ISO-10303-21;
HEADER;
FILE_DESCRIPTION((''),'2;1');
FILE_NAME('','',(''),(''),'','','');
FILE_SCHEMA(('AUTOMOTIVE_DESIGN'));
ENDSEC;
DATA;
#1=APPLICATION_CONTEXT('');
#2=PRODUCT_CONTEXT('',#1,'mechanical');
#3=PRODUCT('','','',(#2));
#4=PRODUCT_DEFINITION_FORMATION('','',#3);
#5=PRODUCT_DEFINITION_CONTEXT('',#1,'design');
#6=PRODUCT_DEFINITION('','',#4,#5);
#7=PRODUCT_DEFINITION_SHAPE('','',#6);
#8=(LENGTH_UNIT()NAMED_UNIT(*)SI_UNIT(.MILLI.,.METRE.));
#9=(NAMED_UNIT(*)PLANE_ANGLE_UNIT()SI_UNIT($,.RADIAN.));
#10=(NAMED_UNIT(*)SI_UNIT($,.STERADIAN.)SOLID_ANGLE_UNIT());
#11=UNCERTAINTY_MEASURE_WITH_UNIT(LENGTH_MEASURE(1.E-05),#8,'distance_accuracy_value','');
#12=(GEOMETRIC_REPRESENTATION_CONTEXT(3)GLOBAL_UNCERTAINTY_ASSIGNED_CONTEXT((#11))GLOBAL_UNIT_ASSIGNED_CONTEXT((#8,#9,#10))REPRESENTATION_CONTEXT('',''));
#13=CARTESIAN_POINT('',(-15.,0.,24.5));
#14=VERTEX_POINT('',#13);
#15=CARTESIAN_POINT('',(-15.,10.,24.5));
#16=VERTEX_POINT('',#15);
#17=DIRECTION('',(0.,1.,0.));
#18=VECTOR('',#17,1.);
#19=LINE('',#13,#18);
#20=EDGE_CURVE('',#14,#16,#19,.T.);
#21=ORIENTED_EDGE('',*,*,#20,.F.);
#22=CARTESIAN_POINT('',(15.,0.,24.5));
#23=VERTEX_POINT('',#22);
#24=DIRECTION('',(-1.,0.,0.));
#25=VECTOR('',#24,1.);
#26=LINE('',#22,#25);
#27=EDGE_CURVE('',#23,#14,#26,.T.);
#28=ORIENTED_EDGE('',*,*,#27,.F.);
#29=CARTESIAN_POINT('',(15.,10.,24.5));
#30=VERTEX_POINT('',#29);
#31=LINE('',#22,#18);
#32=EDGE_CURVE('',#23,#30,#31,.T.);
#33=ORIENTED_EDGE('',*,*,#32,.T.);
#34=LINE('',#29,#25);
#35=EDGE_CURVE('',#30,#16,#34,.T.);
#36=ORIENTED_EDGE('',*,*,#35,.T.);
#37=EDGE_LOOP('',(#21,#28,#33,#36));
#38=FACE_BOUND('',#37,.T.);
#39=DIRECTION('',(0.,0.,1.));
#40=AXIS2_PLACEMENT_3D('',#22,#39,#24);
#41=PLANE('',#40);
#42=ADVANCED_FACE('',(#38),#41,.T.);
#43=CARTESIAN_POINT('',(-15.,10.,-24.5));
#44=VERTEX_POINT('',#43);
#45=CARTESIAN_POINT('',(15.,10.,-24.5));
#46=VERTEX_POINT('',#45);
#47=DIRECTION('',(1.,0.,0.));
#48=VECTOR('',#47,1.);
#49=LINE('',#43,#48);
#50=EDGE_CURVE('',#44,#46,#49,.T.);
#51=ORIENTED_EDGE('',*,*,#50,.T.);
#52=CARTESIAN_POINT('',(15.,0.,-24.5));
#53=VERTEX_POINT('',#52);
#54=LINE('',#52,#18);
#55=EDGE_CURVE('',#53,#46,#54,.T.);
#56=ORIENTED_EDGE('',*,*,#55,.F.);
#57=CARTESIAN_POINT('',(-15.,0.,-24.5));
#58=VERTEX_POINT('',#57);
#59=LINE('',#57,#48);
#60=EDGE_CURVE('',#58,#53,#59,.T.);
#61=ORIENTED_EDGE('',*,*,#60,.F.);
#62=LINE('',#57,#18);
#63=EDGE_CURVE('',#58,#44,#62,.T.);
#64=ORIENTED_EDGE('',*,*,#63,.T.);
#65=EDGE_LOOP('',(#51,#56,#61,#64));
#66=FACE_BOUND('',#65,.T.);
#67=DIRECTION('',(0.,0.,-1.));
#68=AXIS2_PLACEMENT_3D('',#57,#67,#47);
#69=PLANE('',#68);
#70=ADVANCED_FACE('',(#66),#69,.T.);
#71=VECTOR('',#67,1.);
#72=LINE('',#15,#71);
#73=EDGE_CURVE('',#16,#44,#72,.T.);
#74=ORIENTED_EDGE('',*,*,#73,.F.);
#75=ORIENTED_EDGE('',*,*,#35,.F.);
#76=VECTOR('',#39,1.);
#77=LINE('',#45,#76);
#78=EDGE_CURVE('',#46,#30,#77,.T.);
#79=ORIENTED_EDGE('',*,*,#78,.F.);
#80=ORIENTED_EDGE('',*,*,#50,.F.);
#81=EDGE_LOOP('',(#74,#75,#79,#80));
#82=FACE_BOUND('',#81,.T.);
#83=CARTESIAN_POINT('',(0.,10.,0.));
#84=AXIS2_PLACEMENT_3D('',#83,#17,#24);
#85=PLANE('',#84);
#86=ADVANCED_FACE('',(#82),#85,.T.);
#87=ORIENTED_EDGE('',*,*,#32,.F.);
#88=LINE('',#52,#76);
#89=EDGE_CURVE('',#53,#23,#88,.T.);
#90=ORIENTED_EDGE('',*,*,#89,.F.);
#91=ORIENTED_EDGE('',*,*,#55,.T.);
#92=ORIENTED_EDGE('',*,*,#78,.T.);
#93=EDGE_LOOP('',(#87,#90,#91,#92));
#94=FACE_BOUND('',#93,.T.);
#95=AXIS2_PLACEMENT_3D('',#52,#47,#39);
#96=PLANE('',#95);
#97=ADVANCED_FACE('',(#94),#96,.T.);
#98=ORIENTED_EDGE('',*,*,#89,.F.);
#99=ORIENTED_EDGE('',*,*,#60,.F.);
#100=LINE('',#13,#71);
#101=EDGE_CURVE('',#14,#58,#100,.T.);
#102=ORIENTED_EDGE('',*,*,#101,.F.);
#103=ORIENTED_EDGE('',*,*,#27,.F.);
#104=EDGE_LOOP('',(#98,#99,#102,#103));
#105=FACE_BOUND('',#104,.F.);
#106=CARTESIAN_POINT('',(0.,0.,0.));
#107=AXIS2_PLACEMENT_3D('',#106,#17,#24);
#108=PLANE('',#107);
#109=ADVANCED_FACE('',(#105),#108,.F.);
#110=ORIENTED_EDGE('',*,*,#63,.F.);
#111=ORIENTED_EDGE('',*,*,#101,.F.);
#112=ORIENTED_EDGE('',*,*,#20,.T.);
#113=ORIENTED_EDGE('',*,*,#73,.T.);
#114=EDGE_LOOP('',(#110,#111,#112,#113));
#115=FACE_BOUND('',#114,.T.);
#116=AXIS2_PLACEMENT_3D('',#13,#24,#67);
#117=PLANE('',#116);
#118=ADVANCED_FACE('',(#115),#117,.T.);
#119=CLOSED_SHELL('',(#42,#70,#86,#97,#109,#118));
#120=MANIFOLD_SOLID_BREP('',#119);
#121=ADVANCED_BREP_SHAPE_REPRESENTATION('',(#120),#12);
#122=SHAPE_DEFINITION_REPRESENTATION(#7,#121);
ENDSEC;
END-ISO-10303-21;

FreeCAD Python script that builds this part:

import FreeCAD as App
import Part
import Sketcher


def add_polygon(sketch, points):
    """Adds a closed chain of lines whose ends are joined by coincident constraints."""
    first, n = sketch.GeometryCount, len(points)
    for a, b in zip(points, points[1:] + points[:1]):
        sketch.addGeometry(Part.LineSegment(App.Vector(*a, 0), App.Vector(*b, 0)), False)
    for i in range(n):
        sketch.addConstraint(Sketcher.Constraint("Coincident", first + i, 2, first + (i + 1) % n, 1))

doc = App.newDocument("Part")
body = doc.addObject("PartDesign::Body", "Body")

sketch1 = body.newObject("Sketcher::SketchObject", "Sketch")
sketch1.AttachmentSupport = (doc.getObject("XZ_Plane"), [""])
sketch1.MapMode = "FlatFace"
add_polygon(sketch1, [(-15, 24), (15, 24), (15, -24), (-15, -24)])
sketch1.addConstraint(Sketcher.Constraint("Horizontal", 0))
sketch1.addConstraint(Sketcher.Constraint("Vertical", 1))
sketch1.addConstraint(Sketcher.Constraint("Horizontal", 2))
sketch1.addConstraint(Sketcher.Constraint("Vertical", 3))
sketch1.addConstraint(Sketcher.Constraint("Symmetric", 0, 2, 2, 2, -1, 1))
sketch1.addConstraint(Sketcher.Constraint("DistanceX", 0, 1, 0, 2, 30.0))
sketch1.addConstraint(Sketcher.Constraint("DistanceY", 1, 2, 1, 1, 49.0))
pad1 = body.newObject("PartDesign::Pad", "Pad")
pad1.Profile = sketch1
pad1.Length = 10
pad1.Reversed = True

doc.recompute()
